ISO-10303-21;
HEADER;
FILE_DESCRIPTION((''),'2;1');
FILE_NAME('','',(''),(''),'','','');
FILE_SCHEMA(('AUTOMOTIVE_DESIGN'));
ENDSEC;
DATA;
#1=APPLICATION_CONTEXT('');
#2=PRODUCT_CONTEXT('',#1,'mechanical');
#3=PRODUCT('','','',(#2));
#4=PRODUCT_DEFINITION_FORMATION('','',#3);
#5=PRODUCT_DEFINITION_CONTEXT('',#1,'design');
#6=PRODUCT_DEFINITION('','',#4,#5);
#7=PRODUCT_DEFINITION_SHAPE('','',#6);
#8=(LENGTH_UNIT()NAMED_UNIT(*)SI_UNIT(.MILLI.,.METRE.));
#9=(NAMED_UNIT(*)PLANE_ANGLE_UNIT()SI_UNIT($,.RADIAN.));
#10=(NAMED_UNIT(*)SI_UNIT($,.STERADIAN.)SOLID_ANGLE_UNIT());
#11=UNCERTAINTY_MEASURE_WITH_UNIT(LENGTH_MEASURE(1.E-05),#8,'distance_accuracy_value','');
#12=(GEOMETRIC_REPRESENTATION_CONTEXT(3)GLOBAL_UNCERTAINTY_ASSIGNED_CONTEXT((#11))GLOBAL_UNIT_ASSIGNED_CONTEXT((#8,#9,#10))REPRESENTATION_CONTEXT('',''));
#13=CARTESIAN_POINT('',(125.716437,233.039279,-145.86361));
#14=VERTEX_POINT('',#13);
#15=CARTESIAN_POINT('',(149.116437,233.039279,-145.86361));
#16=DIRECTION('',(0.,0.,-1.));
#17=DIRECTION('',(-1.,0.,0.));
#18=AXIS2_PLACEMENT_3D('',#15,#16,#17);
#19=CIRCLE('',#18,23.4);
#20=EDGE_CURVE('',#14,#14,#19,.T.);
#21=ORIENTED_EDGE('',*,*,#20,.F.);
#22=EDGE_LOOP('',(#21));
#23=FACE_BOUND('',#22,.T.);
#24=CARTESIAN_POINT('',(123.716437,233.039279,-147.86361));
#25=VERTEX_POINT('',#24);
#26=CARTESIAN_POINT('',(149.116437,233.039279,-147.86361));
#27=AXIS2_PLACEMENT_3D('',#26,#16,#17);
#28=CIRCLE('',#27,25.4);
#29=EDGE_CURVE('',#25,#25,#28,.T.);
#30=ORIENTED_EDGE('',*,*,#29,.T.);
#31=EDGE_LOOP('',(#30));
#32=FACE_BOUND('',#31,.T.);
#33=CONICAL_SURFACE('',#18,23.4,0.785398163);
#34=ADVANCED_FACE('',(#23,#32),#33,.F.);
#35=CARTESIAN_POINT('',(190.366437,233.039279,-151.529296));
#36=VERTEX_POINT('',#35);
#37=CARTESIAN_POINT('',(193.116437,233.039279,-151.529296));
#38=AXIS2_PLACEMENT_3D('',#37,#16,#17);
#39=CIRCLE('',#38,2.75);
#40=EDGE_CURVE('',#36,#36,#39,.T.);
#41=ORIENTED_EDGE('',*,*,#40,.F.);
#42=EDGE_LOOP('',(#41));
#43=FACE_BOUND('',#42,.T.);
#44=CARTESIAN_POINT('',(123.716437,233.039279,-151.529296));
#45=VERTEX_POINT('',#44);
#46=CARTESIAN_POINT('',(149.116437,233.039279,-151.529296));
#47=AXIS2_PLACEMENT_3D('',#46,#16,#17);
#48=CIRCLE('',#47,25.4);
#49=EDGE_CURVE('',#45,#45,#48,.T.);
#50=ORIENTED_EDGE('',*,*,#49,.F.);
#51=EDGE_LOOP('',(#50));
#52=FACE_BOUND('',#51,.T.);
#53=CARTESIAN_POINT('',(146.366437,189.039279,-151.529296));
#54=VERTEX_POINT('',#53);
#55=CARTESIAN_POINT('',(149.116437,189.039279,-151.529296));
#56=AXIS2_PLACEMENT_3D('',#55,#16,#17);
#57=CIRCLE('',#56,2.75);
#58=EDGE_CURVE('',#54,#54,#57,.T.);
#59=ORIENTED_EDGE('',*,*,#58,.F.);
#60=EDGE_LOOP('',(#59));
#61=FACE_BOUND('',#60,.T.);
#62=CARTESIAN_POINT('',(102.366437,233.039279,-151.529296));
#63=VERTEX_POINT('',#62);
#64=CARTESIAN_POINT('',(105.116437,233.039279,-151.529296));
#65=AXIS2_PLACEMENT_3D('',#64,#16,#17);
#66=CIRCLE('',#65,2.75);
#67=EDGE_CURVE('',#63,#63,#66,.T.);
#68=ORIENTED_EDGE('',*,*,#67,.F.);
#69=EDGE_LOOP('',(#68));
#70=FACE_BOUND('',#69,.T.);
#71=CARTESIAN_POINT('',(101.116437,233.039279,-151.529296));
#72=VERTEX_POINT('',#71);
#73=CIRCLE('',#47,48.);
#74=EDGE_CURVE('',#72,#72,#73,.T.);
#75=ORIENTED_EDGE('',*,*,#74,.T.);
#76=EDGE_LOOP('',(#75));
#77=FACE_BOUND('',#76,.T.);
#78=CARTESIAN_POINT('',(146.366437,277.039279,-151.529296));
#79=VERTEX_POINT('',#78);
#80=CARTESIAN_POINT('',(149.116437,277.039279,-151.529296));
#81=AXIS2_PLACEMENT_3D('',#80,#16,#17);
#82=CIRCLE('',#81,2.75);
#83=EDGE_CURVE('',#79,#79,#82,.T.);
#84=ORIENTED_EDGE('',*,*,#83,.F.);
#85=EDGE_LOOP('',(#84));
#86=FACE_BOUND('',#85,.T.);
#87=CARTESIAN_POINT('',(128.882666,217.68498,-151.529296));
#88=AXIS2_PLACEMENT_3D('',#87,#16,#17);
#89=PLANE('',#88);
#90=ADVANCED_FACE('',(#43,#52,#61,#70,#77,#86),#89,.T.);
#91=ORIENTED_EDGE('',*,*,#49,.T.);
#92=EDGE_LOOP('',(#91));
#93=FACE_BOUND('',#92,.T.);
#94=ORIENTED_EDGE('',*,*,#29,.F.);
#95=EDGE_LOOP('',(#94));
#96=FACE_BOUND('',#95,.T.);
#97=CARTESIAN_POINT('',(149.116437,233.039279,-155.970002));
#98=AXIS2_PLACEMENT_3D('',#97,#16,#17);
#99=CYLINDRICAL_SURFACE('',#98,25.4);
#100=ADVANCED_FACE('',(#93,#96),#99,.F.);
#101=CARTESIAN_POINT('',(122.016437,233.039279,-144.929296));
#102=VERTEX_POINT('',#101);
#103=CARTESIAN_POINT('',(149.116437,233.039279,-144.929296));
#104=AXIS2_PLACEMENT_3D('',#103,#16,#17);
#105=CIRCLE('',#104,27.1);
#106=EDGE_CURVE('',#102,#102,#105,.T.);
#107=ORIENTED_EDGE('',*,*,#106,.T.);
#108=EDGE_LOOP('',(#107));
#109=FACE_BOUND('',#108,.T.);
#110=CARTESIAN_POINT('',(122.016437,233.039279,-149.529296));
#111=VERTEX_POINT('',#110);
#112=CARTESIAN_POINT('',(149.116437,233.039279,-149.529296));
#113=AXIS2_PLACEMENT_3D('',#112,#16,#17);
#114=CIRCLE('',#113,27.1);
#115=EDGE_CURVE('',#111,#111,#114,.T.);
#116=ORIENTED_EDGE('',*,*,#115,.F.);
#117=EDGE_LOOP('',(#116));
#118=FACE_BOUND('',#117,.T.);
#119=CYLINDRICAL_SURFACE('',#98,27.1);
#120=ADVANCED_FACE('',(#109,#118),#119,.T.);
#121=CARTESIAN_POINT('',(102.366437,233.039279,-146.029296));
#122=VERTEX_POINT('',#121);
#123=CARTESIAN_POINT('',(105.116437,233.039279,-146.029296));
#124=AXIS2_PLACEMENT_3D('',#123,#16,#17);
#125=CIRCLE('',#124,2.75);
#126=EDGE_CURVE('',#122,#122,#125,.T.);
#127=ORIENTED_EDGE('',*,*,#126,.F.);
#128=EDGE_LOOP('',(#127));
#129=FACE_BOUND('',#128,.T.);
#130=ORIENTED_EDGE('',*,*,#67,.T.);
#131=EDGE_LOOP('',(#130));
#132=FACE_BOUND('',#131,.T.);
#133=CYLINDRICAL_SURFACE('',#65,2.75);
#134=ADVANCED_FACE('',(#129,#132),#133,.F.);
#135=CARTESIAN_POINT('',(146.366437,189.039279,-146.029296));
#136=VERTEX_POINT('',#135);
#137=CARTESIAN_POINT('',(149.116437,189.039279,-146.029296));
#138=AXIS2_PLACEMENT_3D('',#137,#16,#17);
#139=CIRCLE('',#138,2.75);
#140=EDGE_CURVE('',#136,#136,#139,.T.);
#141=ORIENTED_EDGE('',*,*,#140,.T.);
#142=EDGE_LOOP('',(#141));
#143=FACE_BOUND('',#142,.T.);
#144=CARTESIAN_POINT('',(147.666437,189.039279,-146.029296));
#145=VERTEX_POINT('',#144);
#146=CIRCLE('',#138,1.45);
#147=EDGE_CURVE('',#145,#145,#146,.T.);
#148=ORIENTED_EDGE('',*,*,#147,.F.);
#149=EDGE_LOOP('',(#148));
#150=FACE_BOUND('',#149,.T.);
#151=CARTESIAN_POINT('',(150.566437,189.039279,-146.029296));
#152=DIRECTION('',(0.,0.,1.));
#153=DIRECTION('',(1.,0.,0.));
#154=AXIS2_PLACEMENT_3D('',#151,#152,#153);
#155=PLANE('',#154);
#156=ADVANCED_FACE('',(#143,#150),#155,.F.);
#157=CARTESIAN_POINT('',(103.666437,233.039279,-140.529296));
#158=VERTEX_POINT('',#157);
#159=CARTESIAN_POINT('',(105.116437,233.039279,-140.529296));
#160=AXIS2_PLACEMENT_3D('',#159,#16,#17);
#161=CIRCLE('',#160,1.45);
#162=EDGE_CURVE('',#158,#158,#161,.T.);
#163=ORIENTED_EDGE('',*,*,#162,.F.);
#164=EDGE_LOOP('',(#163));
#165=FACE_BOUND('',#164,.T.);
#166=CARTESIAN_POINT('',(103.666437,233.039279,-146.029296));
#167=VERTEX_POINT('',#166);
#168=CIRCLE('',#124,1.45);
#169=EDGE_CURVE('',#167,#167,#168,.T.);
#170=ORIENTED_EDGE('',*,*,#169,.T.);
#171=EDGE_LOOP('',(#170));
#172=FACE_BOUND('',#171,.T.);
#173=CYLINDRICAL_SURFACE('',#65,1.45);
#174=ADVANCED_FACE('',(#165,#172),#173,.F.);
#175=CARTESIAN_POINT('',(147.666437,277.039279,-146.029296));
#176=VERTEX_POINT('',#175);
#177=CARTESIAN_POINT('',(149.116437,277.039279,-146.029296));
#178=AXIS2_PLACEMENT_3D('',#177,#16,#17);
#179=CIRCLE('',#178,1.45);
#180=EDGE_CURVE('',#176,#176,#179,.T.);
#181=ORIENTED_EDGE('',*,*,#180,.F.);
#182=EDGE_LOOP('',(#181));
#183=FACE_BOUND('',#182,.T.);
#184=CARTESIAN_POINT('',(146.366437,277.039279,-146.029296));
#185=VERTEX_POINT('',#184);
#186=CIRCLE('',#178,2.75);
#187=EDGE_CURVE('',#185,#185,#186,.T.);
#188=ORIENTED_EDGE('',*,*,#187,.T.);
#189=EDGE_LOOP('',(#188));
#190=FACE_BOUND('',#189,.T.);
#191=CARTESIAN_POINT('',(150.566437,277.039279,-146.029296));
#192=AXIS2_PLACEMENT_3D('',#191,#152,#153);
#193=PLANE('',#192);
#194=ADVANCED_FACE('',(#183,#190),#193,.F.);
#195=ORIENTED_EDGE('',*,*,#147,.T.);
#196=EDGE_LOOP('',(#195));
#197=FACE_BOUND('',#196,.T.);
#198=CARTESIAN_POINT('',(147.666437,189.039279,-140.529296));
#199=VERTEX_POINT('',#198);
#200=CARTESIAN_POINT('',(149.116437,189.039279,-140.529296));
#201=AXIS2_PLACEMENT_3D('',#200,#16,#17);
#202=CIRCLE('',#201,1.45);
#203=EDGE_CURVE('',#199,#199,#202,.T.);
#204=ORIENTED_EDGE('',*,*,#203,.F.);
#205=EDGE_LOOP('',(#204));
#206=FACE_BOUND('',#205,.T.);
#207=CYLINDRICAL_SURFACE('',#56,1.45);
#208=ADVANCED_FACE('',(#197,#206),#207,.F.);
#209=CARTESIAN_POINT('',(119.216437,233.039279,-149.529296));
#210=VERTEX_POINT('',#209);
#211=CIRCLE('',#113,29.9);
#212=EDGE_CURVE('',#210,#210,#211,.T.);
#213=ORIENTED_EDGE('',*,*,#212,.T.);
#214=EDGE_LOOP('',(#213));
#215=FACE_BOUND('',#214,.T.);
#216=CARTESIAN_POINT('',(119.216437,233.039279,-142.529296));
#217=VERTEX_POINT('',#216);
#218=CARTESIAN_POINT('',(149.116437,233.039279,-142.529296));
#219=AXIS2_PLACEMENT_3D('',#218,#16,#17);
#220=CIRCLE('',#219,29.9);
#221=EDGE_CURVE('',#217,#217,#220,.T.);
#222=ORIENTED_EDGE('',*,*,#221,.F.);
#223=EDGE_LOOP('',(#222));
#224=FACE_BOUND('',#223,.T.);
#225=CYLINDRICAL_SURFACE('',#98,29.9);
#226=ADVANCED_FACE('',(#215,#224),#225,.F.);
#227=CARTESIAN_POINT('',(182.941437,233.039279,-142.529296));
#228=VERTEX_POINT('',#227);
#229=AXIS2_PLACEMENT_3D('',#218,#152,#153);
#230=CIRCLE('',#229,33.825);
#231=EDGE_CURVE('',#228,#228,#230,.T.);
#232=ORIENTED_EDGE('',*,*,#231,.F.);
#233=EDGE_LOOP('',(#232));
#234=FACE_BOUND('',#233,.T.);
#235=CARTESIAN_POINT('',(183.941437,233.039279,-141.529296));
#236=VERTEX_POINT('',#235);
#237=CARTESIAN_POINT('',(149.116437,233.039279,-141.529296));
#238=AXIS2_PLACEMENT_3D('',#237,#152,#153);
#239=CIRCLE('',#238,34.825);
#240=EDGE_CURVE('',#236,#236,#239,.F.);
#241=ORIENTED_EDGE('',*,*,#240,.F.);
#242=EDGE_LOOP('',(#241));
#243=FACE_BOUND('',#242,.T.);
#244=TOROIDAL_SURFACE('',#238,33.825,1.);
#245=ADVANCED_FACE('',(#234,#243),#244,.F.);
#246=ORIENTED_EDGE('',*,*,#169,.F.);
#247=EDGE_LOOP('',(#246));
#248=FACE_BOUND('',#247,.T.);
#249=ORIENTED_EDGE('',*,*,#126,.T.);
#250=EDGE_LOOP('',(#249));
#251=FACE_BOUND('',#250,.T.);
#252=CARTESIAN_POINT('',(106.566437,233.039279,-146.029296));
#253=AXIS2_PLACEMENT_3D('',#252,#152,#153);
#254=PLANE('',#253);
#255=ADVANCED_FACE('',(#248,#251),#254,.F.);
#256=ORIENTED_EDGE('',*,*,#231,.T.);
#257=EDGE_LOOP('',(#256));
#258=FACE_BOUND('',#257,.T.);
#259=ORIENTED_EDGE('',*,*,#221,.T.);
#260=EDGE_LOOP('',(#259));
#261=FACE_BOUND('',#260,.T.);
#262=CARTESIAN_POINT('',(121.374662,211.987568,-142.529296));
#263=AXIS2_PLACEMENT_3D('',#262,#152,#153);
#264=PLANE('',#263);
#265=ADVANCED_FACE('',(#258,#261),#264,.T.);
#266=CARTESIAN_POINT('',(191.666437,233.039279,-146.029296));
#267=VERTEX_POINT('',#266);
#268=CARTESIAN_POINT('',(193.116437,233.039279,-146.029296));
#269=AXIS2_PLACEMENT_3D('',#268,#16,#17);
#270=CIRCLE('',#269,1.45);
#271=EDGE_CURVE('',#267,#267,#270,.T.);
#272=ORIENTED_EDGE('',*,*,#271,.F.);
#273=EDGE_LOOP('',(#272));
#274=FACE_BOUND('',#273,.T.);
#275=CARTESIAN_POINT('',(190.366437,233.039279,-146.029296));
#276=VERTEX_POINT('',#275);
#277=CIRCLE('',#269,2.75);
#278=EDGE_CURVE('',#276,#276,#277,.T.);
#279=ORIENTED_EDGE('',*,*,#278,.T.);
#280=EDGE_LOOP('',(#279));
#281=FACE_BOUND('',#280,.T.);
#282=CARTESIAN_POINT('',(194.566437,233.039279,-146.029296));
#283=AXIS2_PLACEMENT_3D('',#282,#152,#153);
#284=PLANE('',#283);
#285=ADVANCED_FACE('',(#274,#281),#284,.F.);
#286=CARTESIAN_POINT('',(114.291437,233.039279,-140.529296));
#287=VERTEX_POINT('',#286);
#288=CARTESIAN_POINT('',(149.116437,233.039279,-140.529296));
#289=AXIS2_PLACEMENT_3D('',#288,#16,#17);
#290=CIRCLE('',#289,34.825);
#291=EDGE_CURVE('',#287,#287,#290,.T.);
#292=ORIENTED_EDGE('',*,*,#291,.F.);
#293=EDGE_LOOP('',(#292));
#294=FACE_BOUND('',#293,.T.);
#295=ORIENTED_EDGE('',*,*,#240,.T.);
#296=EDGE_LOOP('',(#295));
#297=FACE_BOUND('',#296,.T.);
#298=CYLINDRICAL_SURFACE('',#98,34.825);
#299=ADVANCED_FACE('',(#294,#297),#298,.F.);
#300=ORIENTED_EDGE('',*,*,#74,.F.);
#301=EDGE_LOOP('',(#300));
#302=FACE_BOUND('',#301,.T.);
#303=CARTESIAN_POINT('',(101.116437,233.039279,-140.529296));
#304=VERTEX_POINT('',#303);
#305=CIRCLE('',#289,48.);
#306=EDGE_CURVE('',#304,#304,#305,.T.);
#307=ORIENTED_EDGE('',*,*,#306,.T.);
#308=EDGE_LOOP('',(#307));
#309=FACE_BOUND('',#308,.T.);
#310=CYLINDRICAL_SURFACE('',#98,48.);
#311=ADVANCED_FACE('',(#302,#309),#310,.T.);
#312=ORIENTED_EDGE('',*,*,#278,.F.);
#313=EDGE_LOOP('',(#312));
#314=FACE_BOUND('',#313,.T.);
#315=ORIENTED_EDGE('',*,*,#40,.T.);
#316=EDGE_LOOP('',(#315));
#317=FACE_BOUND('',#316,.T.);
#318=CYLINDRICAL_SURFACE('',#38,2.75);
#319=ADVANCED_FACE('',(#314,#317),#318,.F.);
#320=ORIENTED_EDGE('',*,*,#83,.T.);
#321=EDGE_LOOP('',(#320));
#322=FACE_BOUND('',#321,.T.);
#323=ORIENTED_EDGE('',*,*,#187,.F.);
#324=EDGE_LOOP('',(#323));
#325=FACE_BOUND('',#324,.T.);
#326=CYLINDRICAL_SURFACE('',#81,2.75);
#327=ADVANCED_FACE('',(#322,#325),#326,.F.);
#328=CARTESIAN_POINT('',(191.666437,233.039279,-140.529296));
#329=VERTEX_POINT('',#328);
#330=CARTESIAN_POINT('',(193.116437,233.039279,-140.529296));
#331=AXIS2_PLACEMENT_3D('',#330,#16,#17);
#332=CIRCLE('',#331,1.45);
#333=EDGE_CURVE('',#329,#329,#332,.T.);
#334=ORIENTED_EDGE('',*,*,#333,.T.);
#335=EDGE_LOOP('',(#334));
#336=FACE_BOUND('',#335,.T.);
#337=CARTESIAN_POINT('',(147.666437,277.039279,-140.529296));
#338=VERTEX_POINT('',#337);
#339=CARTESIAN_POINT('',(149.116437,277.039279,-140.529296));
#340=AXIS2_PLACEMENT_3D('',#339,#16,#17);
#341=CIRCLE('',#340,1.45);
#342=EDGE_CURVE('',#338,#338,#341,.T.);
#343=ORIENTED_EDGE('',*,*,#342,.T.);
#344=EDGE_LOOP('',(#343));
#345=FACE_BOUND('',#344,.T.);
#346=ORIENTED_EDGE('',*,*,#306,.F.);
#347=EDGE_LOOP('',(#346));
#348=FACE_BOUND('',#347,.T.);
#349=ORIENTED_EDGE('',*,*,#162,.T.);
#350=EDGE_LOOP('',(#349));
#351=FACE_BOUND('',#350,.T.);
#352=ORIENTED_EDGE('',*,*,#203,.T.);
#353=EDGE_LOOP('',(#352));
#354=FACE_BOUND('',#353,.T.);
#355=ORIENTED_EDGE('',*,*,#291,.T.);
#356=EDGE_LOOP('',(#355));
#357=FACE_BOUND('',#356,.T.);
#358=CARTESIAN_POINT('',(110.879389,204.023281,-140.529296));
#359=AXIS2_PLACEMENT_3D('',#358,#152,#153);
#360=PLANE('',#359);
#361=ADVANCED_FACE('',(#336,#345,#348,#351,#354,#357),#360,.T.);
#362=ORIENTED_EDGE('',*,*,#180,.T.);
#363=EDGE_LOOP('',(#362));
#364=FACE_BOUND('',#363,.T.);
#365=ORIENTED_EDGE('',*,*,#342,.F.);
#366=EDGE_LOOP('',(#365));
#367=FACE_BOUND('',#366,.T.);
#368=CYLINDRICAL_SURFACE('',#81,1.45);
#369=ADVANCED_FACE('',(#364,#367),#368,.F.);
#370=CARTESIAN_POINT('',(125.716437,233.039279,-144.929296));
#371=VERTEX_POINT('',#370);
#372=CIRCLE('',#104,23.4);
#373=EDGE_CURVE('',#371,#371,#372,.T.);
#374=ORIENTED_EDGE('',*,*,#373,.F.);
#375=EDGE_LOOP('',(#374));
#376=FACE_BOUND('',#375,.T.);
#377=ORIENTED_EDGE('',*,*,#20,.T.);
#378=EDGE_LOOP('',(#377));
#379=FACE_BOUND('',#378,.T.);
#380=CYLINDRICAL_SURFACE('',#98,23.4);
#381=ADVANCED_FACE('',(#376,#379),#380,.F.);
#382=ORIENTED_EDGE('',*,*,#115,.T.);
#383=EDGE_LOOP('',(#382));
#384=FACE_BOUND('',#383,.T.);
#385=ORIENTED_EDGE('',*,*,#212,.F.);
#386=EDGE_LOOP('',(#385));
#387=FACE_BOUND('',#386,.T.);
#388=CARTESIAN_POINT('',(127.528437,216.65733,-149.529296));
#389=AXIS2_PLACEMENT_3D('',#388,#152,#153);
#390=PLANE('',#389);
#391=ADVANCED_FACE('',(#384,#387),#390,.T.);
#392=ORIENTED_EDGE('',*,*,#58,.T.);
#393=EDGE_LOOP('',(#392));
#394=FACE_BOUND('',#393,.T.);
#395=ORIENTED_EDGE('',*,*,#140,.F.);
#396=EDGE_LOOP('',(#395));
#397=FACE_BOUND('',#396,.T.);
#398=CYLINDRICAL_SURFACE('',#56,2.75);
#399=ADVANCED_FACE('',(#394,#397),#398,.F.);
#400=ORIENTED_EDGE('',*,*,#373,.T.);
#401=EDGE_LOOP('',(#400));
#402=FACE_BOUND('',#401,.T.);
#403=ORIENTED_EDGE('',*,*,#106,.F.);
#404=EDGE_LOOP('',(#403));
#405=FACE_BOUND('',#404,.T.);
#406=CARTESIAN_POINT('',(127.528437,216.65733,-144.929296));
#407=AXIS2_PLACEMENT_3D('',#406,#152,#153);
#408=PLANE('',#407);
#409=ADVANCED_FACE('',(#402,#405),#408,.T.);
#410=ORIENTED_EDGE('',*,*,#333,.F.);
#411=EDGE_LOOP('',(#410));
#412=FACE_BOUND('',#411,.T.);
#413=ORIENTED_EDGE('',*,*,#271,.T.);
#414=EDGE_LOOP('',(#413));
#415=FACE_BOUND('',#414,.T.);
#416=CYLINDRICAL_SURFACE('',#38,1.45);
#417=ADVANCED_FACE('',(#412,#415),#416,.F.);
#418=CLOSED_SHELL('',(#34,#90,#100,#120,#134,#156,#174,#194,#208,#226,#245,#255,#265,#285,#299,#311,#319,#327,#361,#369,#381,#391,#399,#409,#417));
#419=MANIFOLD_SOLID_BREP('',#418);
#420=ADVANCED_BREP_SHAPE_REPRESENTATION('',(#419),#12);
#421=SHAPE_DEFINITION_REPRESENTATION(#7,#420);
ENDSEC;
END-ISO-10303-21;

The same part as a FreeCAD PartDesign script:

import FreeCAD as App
import Part
import Sketcher

V = App.Vector
Q = App.Units.Quantity


def edges_at(feature, points):
    """Names of the edges that pass closest to the given points."""
    edges = feature.Shape.Edges
    near = lambda p: min(range(len(edges)), key=lambda i: edges[i].distToShape(Part.Vertex(*p))[0])
    return sorted({f"Edge{near(p) + 1}" for p in points})


def add_polygon(sketch, points):
    """Adds a closed chain of lines whose ends are joined by coincident constraints."""
    first, n = sketch.GeometryCount, len(points)
    for a, b in zip(points, points[1:] + points[:1]):
        sketch.addGeometry(Part.LineSegment(App.Vector(*a, 0), App.Vector(*b, 0)), False)
    for i in range(n):
        sketch.addConstraint(Sketcher.Constraint("Coincident", first + i, 2, first + (i + 1) % n, 1))

doc = App.newDocument("Part")
body = doc.addObject("PartDesign::Body", "Body")

# Sketch on an angled plane
sketch1 = body.newObject("Sketcher::SketchObject", "Sketch")
sketch1.Placement = App.Placement(V(149.116437, 233.039279, -142.529296), App.Rotation(V(0.79660517, 0.604499961, 0), V(0, 0, -1), V(-0.604499961, 0.79660517, 0), "ZXY"))
add_polygon(sketch1, [(-23.4, 2.4), (-23.4, 3.3), (-25.4, 5.3), (-25.4, 9), (-48, 9), (-48, -2), (-34.8, -2), (-34.8, 0), (-29.9, 0), (-29.9, 7), (-27.1, 7), (-27.1, 2.4)])  # lines 0-11
sketch1.addConstraint([
    Sketcher.Constraint("Vertical", 0),
    Sketcher.Constraint("Vertical", 2),
    Sketcher.Constraint("Horizontal", 3),
    Sketcher.Constraint("Vertical", 4),
    Sketcher.Constraint("Horizontal", 5),
    Sketcher.Constraint("Vertical", 6),
    Sketcher.Constraint("Horizontal", 7),
    Sketcher.Constraint("Vertical", 8),
    Sketcher.Constraint("Horizontal", 9),
    Sketcher.Constraint("Vertical", 10),
    Sketcher.Constraint("Horizontal", 11),
    Sketcher.Constraint("PointOnObject", 6, 2, -1),
    Sketcher.Constraint("DistanceY", 4, 2, 4, 1, 11.0),
    Sketcher.Constraint("DistanceY", 6, 1, 6, 2, 2.0),
    Sketcher.Constraint("DistanceY", 8, 1, 8, 2, 7.0),
    Sketcher.Constraint("Angle", 1, Q("135 deg")),
    Sketcher.Constraint("DistanceX", 3, 2, 3, 1, 22.6),
    Sketcher.Constraint("DistanceX", 9, 1, 9, 2, 2.8),
    Sketcher.Constraint("DistanceX", 11, 1, 11, 2, 3.7),
    Sketcher.Constraint("DistanceY", 10, 2, 10, 1, 4.6),
    Sketcher.Constraint("DistanceX", 3, 2, -1, 1, 48.0),
    Sketcher.Constraint("DistanceX", 1, 2, 0, 2, 2.0),
    Sketcher.Constraint("DistanceX", 5, 1, 5, 2, 13.175),
    Sketcher.Constraint("DistanceY", 0, 1, 0, 2, 0.934315),
])
revolution = body.newObject("PartDesign::Revolution", "Revolution")
revolution.Profile = sketch1
revolution.ReferenceAxis = (sketch1, ["V_Axis"])
revolution.Angle = 360
doc.recompute()

fillet = body.newObject("PartDesign::Fillet", "Fillet")
fillet.Base = (revolution, edges_at(revolution, [(183.941, 233.039, -142.529)]))
fillet.Radius = 1

# Sketch on XY plane
sketch2 = body.newObject("Sketcher::SketchObject", "Sketch001")
sketch2.AttachmentSupport = (doc.getObject("XY_Plane"), [""])
sketch2.MapMode = "FlatFace"
sketch2.AttachmentOffset = App.Placement(V(0, 0, -151.529296), App.Rotation())
sketch2.addGeometry([
    Part.Circle(V(149.1, 277, 0), V(0, 0, 1), 1.4),
    Part.Circle(V(149.1, 189, 0), V(0, 0, 1), 1.4),
    Part.Circle(V(105.1, 233, 0), V(0, 0, 1), 1.4),
    Part.Circle(V(193.1, 233, 0), V(0, 0, 1), 1.4),
], False)
sketch2.addConstraint([
    Sketcher.Constraint("Equal", 0, 1),
    Sketcher.Constraint("Equal", 1, 2),
    Sketcher.Constraint("Equal", 2, 3),
    Sketcher.Constraint("Horizontal", 2, 3, 3, 3),
    Sketcher.Constraint("Vertical", 0, 3, 1, 3),
    Sketcher.Constraint("Diameter", 0, 2.9),
    Sketcher.Constraint("DistanceY", 1, 3, 0, 3, 88.0),
    Sketcher.Constraint("DistanceX", 2, 3, 0, 3, 44.0),
    Sketcher.Constraint("DistanceY", 2, 3, 0, 3, 44.0),
    Sketcher.Constraint("DistanceX", 0, 3, 3, 3, 44.0),
    Sketcher.Constraint("DistanceY", -1, 1, 0, 3, 277.039279),
    Sketcher.Constraint("DistanceX", -1, 1, 0, 3, 149.116437),
])
doc.recompute()
hole = body.newObject("PartDesign::Hole", "Hole")
hole.Profile = sketch2
hole.ThreadType = "None"
hole.Diameter = 2.9
hole.DepthType = "Dimension"
hole.Depth = 11
hole.DrillPoint = "Angled"
hole.DrillPointAngle = 118
hole.HoleCutType = "Counterbore"
hole.HoleCutDiameter = 5.5
hole.HoleCutDepth = 5.5
hole.Reversed = True

doc.recompute()
